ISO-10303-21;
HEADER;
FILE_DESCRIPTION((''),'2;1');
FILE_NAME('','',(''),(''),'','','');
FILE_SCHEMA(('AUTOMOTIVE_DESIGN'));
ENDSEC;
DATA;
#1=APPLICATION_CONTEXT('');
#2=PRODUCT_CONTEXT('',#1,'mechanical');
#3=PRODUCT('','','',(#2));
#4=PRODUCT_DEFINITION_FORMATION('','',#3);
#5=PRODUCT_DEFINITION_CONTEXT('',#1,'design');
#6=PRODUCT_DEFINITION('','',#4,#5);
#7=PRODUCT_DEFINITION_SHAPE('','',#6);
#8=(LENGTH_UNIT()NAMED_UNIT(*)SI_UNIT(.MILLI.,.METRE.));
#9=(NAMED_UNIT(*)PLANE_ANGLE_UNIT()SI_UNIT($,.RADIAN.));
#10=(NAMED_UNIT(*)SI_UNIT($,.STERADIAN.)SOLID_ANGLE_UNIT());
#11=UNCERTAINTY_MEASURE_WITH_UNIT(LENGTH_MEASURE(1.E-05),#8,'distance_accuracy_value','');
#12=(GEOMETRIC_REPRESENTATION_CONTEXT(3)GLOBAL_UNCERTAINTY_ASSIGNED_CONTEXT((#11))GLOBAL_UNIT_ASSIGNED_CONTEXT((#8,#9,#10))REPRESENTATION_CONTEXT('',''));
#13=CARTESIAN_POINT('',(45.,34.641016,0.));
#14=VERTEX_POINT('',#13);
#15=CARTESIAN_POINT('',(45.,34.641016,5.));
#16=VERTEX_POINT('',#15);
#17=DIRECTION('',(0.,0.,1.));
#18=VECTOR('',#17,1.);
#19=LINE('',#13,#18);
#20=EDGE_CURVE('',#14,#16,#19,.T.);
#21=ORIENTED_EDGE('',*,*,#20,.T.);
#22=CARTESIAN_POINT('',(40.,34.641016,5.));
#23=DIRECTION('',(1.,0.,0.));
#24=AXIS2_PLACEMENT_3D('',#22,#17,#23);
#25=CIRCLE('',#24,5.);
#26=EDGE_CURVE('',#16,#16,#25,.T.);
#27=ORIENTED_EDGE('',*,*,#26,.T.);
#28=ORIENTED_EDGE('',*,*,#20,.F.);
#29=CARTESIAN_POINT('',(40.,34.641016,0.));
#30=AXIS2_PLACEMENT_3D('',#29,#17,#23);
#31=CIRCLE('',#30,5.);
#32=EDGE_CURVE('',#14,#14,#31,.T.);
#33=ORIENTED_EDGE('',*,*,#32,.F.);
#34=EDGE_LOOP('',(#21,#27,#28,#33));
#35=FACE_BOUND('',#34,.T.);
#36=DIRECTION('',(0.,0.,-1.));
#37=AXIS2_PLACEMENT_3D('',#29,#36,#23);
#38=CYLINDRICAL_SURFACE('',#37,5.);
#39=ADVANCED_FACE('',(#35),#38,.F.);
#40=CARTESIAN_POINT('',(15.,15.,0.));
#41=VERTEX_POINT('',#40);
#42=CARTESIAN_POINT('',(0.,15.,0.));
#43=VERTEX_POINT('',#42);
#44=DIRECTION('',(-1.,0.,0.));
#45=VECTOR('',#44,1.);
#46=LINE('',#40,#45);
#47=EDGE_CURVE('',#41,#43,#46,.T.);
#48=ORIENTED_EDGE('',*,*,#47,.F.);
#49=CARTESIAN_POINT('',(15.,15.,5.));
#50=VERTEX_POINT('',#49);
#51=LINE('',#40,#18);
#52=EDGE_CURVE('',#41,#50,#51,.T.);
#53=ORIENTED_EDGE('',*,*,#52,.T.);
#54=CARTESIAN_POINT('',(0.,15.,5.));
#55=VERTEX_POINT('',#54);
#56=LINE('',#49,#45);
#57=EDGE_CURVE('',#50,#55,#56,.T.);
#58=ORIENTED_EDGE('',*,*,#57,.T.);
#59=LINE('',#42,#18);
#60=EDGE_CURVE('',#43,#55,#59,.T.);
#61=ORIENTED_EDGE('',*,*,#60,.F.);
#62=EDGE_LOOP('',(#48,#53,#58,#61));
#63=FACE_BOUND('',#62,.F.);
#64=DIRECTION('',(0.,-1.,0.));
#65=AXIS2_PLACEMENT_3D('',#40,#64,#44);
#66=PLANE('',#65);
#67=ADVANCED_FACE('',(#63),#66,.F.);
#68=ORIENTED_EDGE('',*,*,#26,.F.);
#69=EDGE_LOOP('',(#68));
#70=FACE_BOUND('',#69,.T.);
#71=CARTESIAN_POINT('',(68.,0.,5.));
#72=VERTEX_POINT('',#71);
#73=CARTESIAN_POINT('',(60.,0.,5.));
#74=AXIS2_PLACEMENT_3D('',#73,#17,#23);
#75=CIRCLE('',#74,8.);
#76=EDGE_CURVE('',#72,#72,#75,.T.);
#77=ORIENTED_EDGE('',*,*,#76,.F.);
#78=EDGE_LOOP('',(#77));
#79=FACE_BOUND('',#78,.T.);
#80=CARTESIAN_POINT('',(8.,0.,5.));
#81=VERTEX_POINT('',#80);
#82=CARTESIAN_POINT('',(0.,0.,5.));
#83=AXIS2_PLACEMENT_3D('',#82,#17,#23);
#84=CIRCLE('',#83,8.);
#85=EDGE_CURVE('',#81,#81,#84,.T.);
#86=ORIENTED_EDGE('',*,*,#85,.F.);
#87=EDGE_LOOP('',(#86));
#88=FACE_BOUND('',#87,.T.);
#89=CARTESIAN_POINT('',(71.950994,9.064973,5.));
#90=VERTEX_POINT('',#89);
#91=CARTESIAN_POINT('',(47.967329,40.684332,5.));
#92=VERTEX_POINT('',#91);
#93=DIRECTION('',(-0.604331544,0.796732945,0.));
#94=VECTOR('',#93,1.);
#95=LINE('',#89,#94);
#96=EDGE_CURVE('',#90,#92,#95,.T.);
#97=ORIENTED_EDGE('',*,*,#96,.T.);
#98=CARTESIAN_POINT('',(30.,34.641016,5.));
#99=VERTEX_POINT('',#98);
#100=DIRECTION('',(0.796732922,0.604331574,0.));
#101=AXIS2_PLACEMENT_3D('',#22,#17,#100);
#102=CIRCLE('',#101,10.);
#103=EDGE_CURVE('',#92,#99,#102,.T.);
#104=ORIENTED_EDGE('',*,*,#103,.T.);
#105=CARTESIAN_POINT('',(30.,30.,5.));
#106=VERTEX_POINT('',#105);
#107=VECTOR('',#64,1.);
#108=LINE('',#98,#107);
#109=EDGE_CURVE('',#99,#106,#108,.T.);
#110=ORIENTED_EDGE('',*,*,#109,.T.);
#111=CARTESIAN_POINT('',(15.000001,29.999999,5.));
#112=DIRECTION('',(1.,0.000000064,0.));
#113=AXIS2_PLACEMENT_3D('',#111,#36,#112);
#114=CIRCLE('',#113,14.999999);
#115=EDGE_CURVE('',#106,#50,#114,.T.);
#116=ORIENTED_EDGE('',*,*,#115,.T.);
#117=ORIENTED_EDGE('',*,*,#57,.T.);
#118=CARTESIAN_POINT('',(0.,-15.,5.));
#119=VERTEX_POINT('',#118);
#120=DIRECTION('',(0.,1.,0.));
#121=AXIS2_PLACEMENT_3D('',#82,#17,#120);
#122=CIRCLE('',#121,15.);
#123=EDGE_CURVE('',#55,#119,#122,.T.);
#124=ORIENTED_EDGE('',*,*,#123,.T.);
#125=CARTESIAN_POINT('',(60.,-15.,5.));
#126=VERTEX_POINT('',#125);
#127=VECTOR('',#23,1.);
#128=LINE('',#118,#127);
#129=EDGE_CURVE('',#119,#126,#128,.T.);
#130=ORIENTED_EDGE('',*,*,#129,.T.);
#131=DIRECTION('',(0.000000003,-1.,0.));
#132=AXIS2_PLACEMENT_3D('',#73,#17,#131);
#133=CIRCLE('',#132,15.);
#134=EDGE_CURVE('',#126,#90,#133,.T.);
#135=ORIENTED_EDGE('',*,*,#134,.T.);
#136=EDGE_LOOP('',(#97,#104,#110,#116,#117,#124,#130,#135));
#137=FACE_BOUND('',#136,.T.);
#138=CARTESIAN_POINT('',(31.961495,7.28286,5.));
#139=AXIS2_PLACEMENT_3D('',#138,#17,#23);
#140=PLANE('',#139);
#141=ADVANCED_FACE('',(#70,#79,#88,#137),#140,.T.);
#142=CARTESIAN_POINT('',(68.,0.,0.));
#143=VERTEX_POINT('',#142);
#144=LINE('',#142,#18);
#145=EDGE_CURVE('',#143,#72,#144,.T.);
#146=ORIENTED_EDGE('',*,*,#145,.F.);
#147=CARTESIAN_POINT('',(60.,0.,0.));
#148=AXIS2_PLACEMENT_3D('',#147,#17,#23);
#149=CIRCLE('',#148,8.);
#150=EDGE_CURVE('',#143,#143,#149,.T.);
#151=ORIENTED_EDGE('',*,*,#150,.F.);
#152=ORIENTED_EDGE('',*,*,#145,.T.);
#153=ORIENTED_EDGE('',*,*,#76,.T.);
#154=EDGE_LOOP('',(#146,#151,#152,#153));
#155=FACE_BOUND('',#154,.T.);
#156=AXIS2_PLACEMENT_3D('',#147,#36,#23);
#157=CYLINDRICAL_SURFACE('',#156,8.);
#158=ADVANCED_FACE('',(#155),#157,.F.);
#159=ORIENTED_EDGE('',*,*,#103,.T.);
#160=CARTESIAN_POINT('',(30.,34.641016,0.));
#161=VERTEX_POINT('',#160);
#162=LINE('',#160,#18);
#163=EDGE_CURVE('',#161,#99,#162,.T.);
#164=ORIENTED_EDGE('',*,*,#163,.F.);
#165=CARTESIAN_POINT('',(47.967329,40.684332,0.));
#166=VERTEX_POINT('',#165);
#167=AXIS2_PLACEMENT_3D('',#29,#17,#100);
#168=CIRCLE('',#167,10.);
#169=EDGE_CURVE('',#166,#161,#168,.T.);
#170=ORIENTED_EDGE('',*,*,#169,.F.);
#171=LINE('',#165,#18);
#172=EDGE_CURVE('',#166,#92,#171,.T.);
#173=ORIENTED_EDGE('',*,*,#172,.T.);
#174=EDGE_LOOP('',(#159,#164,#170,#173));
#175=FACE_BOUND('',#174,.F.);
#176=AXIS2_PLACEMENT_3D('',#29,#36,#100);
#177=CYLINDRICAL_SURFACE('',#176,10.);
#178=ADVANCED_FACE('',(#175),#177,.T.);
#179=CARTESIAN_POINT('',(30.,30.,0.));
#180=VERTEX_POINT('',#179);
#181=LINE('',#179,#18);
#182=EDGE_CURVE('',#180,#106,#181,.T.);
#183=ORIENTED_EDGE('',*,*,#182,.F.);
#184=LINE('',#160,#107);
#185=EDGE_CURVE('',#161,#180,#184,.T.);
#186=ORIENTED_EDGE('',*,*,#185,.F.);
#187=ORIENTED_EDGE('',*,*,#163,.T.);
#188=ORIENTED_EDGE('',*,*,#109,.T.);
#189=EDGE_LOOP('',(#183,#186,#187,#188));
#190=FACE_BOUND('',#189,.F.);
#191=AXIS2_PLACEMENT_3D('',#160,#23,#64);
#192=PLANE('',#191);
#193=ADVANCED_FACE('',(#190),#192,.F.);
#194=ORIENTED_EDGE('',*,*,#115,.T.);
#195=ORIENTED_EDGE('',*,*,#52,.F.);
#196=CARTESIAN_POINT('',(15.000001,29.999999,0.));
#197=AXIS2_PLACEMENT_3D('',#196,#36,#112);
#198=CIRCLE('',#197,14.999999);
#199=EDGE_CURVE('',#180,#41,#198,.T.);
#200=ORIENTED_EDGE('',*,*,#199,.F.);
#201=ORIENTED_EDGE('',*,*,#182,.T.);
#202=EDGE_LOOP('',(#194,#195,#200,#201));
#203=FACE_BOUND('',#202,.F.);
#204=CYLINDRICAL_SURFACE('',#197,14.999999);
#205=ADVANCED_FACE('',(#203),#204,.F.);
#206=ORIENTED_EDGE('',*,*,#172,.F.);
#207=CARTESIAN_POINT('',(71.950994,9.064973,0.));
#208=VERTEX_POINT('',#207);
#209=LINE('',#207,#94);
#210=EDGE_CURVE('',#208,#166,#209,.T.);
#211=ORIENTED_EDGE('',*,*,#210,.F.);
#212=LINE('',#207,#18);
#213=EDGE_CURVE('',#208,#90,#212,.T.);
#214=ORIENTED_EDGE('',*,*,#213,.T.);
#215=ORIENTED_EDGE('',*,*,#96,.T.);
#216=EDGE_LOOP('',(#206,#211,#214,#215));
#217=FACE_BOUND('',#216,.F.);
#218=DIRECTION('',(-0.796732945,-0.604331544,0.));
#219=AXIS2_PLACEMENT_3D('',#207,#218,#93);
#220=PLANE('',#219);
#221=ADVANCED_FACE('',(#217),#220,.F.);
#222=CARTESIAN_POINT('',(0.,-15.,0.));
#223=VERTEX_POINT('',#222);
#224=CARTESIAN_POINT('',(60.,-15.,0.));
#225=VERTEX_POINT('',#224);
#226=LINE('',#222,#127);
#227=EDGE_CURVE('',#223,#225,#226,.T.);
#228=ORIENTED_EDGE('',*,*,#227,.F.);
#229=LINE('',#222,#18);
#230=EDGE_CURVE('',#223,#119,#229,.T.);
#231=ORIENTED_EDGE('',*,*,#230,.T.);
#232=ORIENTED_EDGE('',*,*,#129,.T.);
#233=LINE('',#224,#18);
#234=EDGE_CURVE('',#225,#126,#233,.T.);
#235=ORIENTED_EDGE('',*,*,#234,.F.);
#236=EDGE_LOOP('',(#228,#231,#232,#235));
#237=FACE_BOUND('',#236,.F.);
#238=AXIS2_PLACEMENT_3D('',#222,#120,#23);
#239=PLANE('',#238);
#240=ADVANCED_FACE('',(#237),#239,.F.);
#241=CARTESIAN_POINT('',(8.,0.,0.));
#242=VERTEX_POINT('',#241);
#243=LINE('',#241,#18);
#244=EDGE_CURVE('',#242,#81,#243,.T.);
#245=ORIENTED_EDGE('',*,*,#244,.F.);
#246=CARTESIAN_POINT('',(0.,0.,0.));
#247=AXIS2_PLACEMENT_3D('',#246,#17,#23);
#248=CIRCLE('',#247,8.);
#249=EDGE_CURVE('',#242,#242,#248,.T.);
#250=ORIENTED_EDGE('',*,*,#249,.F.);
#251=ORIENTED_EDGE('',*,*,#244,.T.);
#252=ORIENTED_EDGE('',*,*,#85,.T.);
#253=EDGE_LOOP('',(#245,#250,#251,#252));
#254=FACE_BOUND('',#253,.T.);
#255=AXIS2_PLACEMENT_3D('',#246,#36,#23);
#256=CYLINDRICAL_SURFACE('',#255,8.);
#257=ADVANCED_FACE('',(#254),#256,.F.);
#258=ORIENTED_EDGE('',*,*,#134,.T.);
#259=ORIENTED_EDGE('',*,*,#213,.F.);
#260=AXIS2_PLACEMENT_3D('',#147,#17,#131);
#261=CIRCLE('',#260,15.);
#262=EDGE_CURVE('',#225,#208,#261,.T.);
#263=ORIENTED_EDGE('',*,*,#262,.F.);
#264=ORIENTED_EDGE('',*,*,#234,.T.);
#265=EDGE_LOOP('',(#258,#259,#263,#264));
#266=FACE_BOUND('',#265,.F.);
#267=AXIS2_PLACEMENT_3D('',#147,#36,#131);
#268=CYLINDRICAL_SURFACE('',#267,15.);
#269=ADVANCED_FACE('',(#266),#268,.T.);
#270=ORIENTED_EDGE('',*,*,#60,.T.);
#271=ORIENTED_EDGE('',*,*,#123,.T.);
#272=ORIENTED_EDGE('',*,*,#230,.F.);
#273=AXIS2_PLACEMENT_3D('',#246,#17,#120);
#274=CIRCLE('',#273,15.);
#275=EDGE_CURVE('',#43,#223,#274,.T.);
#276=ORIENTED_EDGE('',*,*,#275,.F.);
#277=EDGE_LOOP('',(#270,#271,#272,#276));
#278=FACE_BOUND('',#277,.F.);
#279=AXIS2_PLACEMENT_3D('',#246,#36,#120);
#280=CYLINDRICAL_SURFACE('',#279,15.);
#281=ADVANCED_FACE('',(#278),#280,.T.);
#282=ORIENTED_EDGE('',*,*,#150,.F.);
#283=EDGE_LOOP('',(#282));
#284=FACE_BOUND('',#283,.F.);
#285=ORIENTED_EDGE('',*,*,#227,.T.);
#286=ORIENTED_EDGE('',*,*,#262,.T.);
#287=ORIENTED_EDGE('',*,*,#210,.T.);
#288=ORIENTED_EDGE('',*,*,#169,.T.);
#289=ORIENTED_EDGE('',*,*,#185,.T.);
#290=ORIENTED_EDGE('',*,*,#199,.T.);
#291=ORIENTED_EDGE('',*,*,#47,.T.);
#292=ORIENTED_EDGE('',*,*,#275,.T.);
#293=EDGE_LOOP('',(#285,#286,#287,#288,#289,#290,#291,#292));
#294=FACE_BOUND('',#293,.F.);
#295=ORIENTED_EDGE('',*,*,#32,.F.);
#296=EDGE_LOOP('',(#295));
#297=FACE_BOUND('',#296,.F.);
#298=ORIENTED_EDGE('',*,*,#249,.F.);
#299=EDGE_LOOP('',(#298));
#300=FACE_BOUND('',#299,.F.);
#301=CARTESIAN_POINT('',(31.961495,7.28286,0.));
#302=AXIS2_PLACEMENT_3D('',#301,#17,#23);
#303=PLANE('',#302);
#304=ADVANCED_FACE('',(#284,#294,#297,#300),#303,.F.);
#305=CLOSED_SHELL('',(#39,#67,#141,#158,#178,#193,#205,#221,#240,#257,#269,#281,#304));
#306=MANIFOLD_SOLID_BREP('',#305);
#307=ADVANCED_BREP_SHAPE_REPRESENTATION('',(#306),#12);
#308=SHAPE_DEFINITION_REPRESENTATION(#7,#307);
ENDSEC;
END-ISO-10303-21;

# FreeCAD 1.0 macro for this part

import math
import FreeCAD as App
import Part
import Sketcher
Q = App.Units.Quantity

doc = App.newDocument("Part")
body = doc.addObject("PartDesign::Body", "Body")

# Sketch on XY plane
sketch1 = body.newObject("Sketcher::SketchObject", "Sketch")
sketch1.AttachmentSupport = (doc.getObject("XY_Plane"), [""])
sketch1.MapMode = "FlatFace"
sketch1.addGeometry(Part.LineSegment(App.Vector(15, 15, 0), App.Vector(0, 15, 0)), False)
sketch1.addGeometry(Part.ArcOfCircle(Part.Circle(App.Vector(0, 0, 0), App.Vector(0, 0, 1), 15), math.radians(90), math.radians(270)), False)
sketch1.addGeometry(Part.LineSegment(App.Vector(0, -15, 0), App.Vector(60, -15, 0)), False)
sketch1.addGeometry(Part.ArcOfCircle(Part.Circle(App.Vector(60, 0, 0), App.Vector(0, 0, 1), 15), math.radians(-90), math.radians(37.180756)), False)
sketch1.addGeometry(Part.LineSegment(App.Vector(71.950994, 9.064973, 0), App.Vector(47.967329, 40.684332, 0)), False)
sketch1.addGeometry(Part.ArcOfCircle(Part.Circle(App.Vector(40, 34.641016, 0), App.Vector(0, 0, 1), 10), math.radians(37.180758), math.radians(180.000002)), False)
sketch1.addGeometry(Part.LineSegment(App.Vector(30, 34.641016, 0), App.Vector(30, 30, 0)), False)
sketch1.addGeometry(Part.ArcOfCircle(Part.Circle(App.Vector(15.000001, 29.999999, 0), App.Vector(0, 0, 1), 14.999999), math.radians(-90.000004), math.radians(0.000004)), False)
sketch1.addGeometry(Part.Circle(App.Vector(0, 0, 0), App.Vector(0, 0, 1), 8), False)
sketch1.addGeometry(Part.Circle(App.Vector(60, 0, 0), App.Vector(0, 0, 1), 8), False)
sketch1.addGeometry(Part.Circle(App.Vector(40, 34.641016, 0), App.Vector(0, 0, 1), 5), False)
sketch1.addConstraint(Sketcher.Constraint("Tangent", 0, 2, 1, 1))
sketch1.addConstraint(Sketcher.Constraint("Tangent", 1, 2, 2, 1))
sketch1.addConstraint(Sketcher.Constraint("Tangent", 2, 2, 3, 1))
sketch1.addConstraint(Sketcher.Constraint("Tangent", 3, 2, 4, 1))
sketch1.addConstraint(Sketcher.Constraint("Tangent", 4, 2, 5, 1))
sketch1.addConstraint(Sketcher.Constraint("Tangent", 5, 2, 6, 1))
sketch1.addConstraint(Sketcher.Constraint("Tangent", 6, 2, 7, 2))
sketch1.addConstraint(Sketcher.Constraint("Tangent", 7, 1, 0, 1))
sketch1.addConstraint(Sketcher.Constraint("Horizontal", 0))
sketch1.addConstraint(Sketcher.Constraint("Horizontal", 2))
sketch1.addConstraint(Sketcher.Constraint("Vertical", 6))
sketch1.addConstraint(Sketcher.Constraint("Coincident", 1, 3, -1, 1))
sketch1.addConstraint(Sketcher.Constraint("Coincident", 8, 3, -1, 1))
sketch1.addConstraint(Sketcher.Constraint("Coincident", 9, 3, 3, 3))
sketch1.addConstraint(Sketcher.Constraint("Coincident", 10, 3, 5, 3))
sketch1.addConstraint(Sketcher.Constraint("Equal", 1, 3))
sketch1.addConstraint(Sketcher.Constraint("Equal", 3, 7))
sketch1.addConstraint(Sketcher.Constraint("Equal", 8, 9))
sketch1.addConstraint(Sketcher.Constraint("Diameter", 8, Q("16 mm")))
sketch1.addConstraint(Sketcher.Constraint("Diameter", 10, Q("10 mm")))
sketch1.addConstraint(Sketcher.Constraint("Radius", 1, Q("15 mm")))
sketch1.addConstraint(Sketcher.Constraint("Radius", 5, Q("10 mm")))
sketch1.addConstraint(Sketcher.Constraint("DistanceX", 0, 2, 0, 1, Q("15 mm")))
sketch1.addConstraint(Sketcher.Constraint("DistanceX", 2, 1, 2, 2, Q("60 mm")))
sketch1.addConstraint(Sketcher.Constraint("Distance", 4, Q("39.68627 mm")))
pad1 = body.newObject("PartDesign::Pad", "Pad")
pad1.Profile = sketch1
pad1.Length = 5

doc.recompute()
